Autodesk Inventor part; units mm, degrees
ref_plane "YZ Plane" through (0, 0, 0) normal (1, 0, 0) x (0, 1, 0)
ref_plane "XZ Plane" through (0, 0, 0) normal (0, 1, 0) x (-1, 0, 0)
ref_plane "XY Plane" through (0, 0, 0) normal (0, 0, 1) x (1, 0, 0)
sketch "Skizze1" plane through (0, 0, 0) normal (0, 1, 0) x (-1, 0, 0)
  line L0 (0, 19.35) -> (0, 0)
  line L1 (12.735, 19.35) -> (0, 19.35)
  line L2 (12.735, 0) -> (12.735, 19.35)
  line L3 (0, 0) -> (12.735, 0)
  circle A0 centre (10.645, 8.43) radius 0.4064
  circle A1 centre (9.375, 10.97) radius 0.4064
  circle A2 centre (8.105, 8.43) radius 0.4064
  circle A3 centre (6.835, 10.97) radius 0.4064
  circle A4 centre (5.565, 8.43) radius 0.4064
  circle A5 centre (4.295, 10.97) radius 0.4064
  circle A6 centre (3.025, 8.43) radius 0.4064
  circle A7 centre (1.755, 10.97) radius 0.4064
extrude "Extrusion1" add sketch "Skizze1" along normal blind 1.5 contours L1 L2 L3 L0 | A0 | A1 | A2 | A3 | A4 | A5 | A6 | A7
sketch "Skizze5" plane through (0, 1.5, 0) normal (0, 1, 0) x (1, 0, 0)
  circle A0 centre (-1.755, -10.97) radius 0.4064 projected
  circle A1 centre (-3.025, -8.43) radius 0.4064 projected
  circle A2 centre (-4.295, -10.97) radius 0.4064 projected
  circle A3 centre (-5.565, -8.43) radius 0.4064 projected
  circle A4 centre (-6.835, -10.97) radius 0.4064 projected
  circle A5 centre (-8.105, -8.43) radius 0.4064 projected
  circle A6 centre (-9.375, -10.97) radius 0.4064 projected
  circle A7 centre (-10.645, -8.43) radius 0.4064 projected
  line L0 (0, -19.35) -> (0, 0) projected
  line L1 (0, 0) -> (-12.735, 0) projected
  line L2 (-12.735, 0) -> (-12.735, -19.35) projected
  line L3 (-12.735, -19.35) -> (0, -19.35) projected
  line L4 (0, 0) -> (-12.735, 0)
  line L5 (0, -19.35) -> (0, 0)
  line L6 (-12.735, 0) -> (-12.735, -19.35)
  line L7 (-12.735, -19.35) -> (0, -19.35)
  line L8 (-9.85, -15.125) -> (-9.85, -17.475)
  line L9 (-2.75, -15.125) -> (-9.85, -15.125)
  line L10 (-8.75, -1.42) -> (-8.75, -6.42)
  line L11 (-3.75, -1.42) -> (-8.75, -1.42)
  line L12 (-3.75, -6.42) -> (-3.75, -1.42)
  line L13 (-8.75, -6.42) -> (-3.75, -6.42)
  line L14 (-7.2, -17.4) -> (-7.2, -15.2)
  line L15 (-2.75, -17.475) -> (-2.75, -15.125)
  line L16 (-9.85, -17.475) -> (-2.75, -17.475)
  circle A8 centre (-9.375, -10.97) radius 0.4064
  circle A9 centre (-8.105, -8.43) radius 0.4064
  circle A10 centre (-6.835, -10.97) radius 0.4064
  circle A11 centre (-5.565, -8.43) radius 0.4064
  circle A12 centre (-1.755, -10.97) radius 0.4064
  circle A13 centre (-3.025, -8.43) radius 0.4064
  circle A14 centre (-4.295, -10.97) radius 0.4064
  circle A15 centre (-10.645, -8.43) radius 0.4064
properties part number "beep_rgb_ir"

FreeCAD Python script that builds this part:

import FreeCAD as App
import Part
import Sketcher

V = App.Vector


def add_polygon(sketch, points):
    """Adds a closed chain of lines whose ends are joined by coincident constraints."""
    first, n = sketch.GeometryCount, len(points)
    for a, b in zip(points, points[1:] + points[:1]):
        sketch.addGeometry(Part.LineSegment(App.Vector(*a, 0), App.Vector(*b, 0)), False)
    for i in range(n):
        sketch.addConstraint(Sketcher.Constraint("Coincident", first + i, 2, first + (i + 1) % n, 1))

doc = App.newDocument("Part")
body = doc.addObject("PartDesign::Body", "Body")

# Sketch on XZ plane
sketch1 = body.newObject("Sketcher::SketchObject", "Sketch")
sketch1.AttachmentSupport = (doc.getObject("XZ_Plane"), [""])
sketch1.MapMode = "FlatFace"
add_polygon(sketch1, [(-13, 19), (0, 19), (0, 0), (-13, 0)])  # lines 0-3
sketch1.addConstraint([
    Sketcher.Constraint("Horizontal", 0),
    Sketcher.Constraint("Vertical", 1),
    Sketcher.Constraint("Horizontal", 2),
    Sketcher.Constraint("Vertical", 3),
    Sketcher.Constraint("Coincident", 1, 2, -1, 1),
    Sketcher.Constraint("DistanceY", 1, 2, 1, 1, 19.35),
    Sketcher.Constraint("DistanceX", 0, 1, 0, 2, 12.735),
])
pad1 = body.newObject("PartDesign::Pad", "Pad")
pad1.Profile = sketch1
pad1.Length = 1.5
pad1.Reversed = True

doc.recompute()
